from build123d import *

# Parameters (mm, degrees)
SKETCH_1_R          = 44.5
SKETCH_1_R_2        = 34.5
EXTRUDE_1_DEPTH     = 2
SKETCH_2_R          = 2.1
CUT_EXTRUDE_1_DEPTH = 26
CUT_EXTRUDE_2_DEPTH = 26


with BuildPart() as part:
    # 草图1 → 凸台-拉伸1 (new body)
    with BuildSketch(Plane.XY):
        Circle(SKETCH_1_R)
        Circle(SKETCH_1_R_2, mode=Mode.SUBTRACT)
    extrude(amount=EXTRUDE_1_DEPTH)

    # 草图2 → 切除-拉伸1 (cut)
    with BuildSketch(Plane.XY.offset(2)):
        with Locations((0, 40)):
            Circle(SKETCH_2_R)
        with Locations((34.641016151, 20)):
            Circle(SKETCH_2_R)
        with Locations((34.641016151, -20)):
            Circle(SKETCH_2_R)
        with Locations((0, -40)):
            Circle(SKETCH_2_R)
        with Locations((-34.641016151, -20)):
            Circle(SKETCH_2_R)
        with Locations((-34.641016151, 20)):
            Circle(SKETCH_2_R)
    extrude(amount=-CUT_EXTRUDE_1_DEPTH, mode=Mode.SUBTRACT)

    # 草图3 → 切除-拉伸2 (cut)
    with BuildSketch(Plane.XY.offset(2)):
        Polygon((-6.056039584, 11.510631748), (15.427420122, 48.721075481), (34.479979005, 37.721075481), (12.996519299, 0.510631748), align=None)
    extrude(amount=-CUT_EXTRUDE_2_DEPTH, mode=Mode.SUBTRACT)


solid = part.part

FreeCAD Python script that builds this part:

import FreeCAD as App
import Part
import Sketcher
from FreeCAD import Vector
Q = App.Units.Quantity


def add_polygon(sketch, points):
    """Adds a closed chain of lines whose ends are joined by coincident constraints."""
    first, n = sketch.GeometryCount, len(points)
    for a, b in zip(points, points[1:] + points[:1]):
        sketch.addGeometry(Part.LineSegment(App.Vector(*a, 0), App.Vector(*b, 0)), False)
    for i in range(n):
        sketch.addConstraint(Sketcher.Constraint("Coincident", first + i, 2, first + (i + 1) % n, 1))

doc = App.newDocument("Part")
body = doc.addObject("PartDesign::Body", "Body")

sketch1 = body.newObject("Sketcher::SketchObject", "Sketch")
sketch1.AttachmentSupport = (doc.getObject("XY_Plane"), [""])
sketch1.MapMode = "FlatFace"
sketch1.addGeometry([
    Part.Circle(Vector(0, 0, 0), Vector(0, 0, 1), 44.5),
    Part.Circle(Vector(0, 0, 0), Vector(0, 0, 1), 34.5),
], False)
sketch1.addConstraint([
    Sketcher.Constraint("Coincident", 0, 3, -1, 1),
    Sketcher.Constraint("Coincident", 1, 3, -1, 1),
    Sketcher.Constraint("Diameter", 0, Q("89 mm")),
    Sketcher.Constraint("Diameter", 1, Q("69 mm")),
])
pad1 = body.newObject("PartDesign::Pad", "Pad")
pad1.Profile = sketch1
pad1.Length = 2

sketch2 = body.newObject("Sketcher::SketchObject", "Sketch001")
sketch2.AttachmentSupport = (doc.getObject("XY_Plane"), [""])
sketch2.MapMode = "FlatFace"
sketch2.AttachmentOffset = App.Placement(Vector(0, 0, 2), App.Rotation())
sketch2.addGeometry([
    Part.Circle(Vector(0, 40, 0), Vector(0, 0, 1), 2.1),
    Part.Circle(Vector(34.641016, 20, 0), Vector(0, 0, 1), 2.1),
    Part.Circle(Vector(34.641016, -20, 0), Vector(0, 0, 1), 2.1),
    Part.Circle(Vector(0, -40, 0), Vector(0, 0, 1), 2.1),
    Part.Circle(Vector(-34.641016, -20, 0), Vector(0, 0, 1), 2.1),
    Part.Circle(Vector(-34.641016, 20, 0), Vector(0, 0, 1), 2.1),
], False)
sketch2.addConstraint([
    Sketcher.Constraint("Equal", 0, 1),
    Sketcher.Constraint("Equal", 1, 2),
    Sketcher.Constraint("Equal", 2, 3),
    Sketcher.Constraint("Equal", 3, 4),
    Sketcher.Constraint("Equal", 4, 5),
    Sketcher.Constraint("Symmetric", 0, 3, 3, 3, -1, 1),
    Sketcher.Constraint("Symmetric", 1, 3, 4, 3, -1, 1),
    Sketcher.Constraint("Symmetric", 2, 3, 5, 3, -1, 1),
    Sketcher.Constraint("Symmetric", 2, 3, 4, 3, -2),
    Sketcher.Constraint("PointOnObject", 0, 3, -2),
    Sketcher.Constraint("Diameter", 0, Q("4.2 mm")),
    Sketcher.Constraint("DistanceY", -1, 1, 0, 3, Q("40 mm")),
    Sketcher.Constraint("DistanceY", -1, 1, 1, 3, Q("20 mm")),
    Sketcher.Constraint("DistanceX", -1, 1, 1, 3, Q("34.641016 mm")),
])
pocket1 = body.newObject("PartDesign::Pocket", "Pocket")
pocket1.Profile = sketch2
pocket1.Length = 26

sketch3 = body.newObject("Sketcher::SketchObject", "Sketch002")
sketch3.AttachmentSupport = (doc.getObject("XY_Plane"), [""])
sketch3.MapMode = "FlatFace"
sketch3.AttachmentOffset = App.Placement(Vector(0, 0, 2), App.Rotation())
add_polygon(sketch3, [(15.42742, 48.721075), (-6.05604, 11.510632), (12.996519, 0.510632), (34.479979, 37.721075)])
sketch3.addConstraint([
    Sketcher.Constraint("Perpendicular", 0, 1),
    Sketcher.Constraint("Perpendicular", 1, 2),
    Sketcher.Constraint("Perpendicular", 2, 3),
    Sketcher.Constraint("Angle", 0, Q("-120 deg")),
    Sketcher.Constraint("Distance", 1, Q("22 mm")),
    Sketcher.Constraint("DistanceX", 1, 2, 3, 2, Q("2.430901 mm")),
    Sketcher.Constraint("DistanceX", 0, 2, -1, 1, Q("6.05604 mm")),
    Sketcher.Constraint("DistanceY", -1, 1, 0, 2, Q("11.510632 mm")),
])
pocket2 = body.newObject("PartDesign::Pocket", "Pocket001")
pocket2.Profile = sketch3
pocket2.Length = 26

doc.recompute()
